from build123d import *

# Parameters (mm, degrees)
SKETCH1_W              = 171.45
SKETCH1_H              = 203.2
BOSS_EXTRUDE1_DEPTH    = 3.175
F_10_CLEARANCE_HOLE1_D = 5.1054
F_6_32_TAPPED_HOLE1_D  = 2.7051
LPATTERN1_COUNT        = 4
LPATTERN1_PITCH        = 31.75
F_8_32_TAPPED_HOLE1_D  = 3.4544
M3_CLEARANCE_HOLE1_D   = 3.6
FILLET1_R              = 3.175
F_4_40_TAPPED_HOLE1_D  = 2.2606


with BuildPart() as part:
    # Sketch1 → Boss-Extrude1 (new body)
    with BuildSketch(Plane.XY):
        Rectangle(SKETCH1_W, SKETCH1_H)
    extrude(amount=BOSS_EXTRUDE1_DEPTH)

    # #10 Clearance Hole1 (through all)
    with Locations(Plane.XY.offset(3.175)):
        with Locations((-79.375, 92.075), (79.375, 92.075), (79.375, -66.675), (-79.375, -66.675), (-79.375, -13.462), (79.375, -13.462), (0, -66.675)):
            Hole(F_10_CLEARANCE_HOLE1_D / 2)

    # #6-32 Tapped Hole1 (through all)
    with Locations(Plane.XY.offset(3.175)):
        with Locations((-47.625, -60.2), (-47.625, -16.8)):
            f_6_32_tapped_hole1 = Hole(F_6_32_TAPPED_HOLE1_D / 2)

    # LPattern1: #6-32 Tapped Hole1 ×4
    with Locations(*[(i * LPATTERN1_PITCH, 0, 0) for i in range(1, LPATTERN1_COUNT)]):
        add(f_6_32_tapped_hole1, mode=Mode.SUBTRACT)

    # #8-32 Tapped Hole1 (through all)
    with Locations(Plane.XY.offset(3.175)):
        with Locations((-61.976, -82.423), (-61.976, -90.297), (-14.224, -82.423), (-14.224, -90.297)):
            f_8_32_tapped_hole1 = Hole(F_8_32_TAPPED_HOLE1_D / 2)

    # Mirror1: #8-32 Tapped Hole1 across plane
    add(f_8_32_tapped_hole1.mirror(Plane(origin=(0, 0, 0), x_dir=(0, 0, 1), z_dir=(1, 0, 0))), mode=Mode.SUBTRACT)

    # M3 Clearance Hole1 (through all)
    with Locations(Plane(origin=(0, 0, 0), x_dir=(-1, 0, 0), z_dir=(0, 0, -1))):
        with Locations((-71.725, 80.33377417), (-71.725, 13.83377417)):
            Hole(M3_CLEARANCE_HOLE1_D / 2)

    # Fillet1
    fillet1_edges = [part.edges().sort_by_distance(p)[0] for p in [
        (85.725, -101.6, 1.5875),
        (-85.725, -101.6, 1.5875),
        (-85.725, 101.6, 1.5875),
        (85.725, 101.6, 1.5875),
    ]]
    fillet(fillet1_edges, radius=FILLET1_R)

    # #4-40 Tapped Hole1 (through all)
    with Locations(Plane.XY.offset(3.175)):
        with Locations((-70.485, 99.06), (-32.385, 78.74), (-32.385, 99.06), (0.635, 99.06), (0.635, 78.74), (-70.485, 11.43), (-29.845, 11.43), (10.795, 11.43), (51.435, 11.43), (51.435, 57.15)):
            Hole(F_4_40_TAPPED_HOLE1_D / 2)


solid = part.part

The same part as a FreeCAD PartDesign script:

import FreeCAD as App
import Part
import Sketcher
from FreeCAD import Vector
Q = App.Units.Quantity


def edges_at(feature, points):
    """Names of the edges that pass closest to the given points."""
    edges = feature.Shape.Edges
    near = lambda p: min(range(len(edges)), key=lambda i: edges[i].distToShape(Part.Vertex(*p))[0])
    return sorted({f"Edge{near(p) + 1}" for p in points})


def add_polygon(sketch, points):
    """Adds a closed chain of lines whose ends are joined by coincident constraints."""
    first, n = sketch.GeometryCount, len(points)
    for a, b in zip(points, points[1:] + points[:1]):
        sketch.addGeometry(Part.LineSegment(App.Vector(*a, 0), App.Vector(*b, 0)), False)
    for i in range(n):
        sketch.addConstraint(Sketcher.Constraint("Coincident", first + i, 2, first + (i + 1) % n, 1))

doc = App.newDocument("Part")
body = doc.addObject("PartDesign::Body", "Body")

sketch1 = doc.addObject("Sketcher::SketchObject", "Sketch")
body.addObject(sketch1)
sketch1.AttachmentSupport = (doc.XY_Plane, [""])
sketch1.MapMode = "FlatFace"
add_polygon(sketch1, [(-86, 102), (-86, -102), (86, -102), (86, 102)])
sketch1.addConstraint(Sketcher.Constraint("Vertical", 0))
sketch1.addConstraint(Sketcher.Constraint("Horizontal", 1))
sketch1.addConstraint(Sketcher.Constraint("Vertical", 2))
sketch1.addConstraint(Sketcher.Constraint("Horizontal", 3))
sketch1.addConstraint(Sketcher.Constraint("Symmetric", 0, 2, 2, 2, -1, 1))
sketch1.addConstraint(Sketcher.Constraint("DistanceY", 0, 2, 0, 1, Q("8 in")))
sketch1.addConstraint(Sketcher.Constraint("DistanceX", 1, 1, 1, 2, Q("6.75 in")))
pad1 = doc.addObject("PartDesign::Pad", "Pad")
body.addObject(pad1)
pad1.Profile = sketch1
pad1.Length = Q("0.125 in")

sketch2 = doc.addObject("Sketcher::SketchObject", "Sketch001")
body.addObject(sketch2)
sketch2.AttachmentSupport = (doc.XY_Plane, [""])
sketch2.MapMode = "FlatFace"
sketch2.AttachmentOffset = App.Placement(Vector(0, 0, 0.125 * 25.4), App.Rotation())
sketch2.addGeometry(Part.Circle(Vector(-79.4, 92.1, 0), Vector(0, 0, 1), 2.6), False)
sketch2.addGeometry(Part.Circle(Vector(79.4, 92.1, 0), Vector(0, 0, 1), 2.6), False)
sketch2.addGeometry(Part.Circle(Vector(79.4, -66.7, 0), Vector(0, 0, 1), 2.6), False)
sketch2.addGeometry(Part.Circle(Vector(-79.4, -66.7, 0), Vector(0, 0, 1), 2.6), False)
sketch2.addGeometry(Part.Circle(Vector(-79.4, -13.5, 0), Vector(0, 0, 1), 2.6), False)
sketch2.addGeometry(Part.Circle(Vector(79.4, -13.5, 0), Vector(0, 0, 1), 2.6), False)
sketch2.addGeometry(Part.Circle(Vector(0, -66.7, 0), Vector(0, 0, 1), 2.6), False)
sketch2.addConstraint(Sketcher.Constraint("Equal", 0, 1))
sketch2.addConstraint(Sketcher.Constraint("Equal", 1, 2))
sketch2.addConstraint(Sketcher.Constraint("Equal", 2, 3))
sketch2.addConstraint(Sketcher.Constraint("Equal", 3, 4))
sketch2.addConstraint(Sketcher.Constraint("Equal", 4, 5))
sketch2.addConstraint(Sketcher.Constraint("Equal", 5, 6))
sketch2.addConstraint(Sketcher.Constraint("Symmetric", 0, 3, 1, 3, -2))
sketch2.addConstraint(Sketcher.Constraint("Symmetric", 2, 3, 3, 3, -2))
sketch2.addConstraint(Sketcher.Constraint("Symmetric", 4, 3, 5, 3, -2))
sketch2.addConstraint(Sketcher.Constraint("PointOnObject", 6, 3, -2))
sketch2.addConstraint(Sketcher.Constraint("Horizontal", 3, 3, 6, 3))
sketch2.addConstraint(Sketcher.Constraint("Vertical", 1, 3, 2, 3))
sketch2.addConstraint(Sketcher.Constraint("Vertical", 3, 3, 4, 3))
sketch2.addConstraint(Sketcher.Constraint("Diameter", 0, Q("0.201 in")))
sketch2.addConstraint(Sketcher.Constraint("DistanceY", 4, 3, -1, 1, Q("0.53 in")))
sketch2.addConstraint(Sketcher.Constraint("DistanceX", 0, 3, 1, 3, Q("6.25 in")))
sketch2.addConstraint(Sketcher.Constraint("DistanceY", 2, 3, 1, 3, Q("6.25 in")))
sketch2.addConstraint(Sketcher.Constraint("DistanceY", -1, 1, 0, 3, Q("3.625 in")))
doc.recompute()
hole = doc.addObject("PartDesign::Hole", "Hole")
body.addObject(hole)
hole.Profile = sketch2
hole.ThreadType = "None"
hole.Diameter = Q("0.201 in")
hole.DepthType = "ThroughAll"

sketch3 = doc.addObject("Sketcher::SketchObject", "Sketch002")
body.addObject(sketch3)
sketch3.AttachmentSupport = (doc.XY_Plane, [""])
sketch3.MapMode = "FlatFace"
sketch3.AttachmentOffset = App.Placement(Vector(0, 0, 0.125 * 25.4), App.Rotation())
sketch3.addGeometry(Part.Circle(Vector(-47.6, -60.2, 0), Vector(0, 0, 1), 1.4), False)
sketch3.addGeometry(Part.Circle(Vector(-47.6, -16.8, 0), Vector(0, 0, 1), 1.4), False)
sketch3.addConstraint(Sketcher.Constraint("Equal", 0, 1))
sketch3.addConstraint(Sketcher.Constraint("Vertical", 0, 3, 1, 3))
sketch3.addConstraint(Sketcher.Constraint("Diameter", 0, Q("0.1065 in")))
sketch3.addConstraint(Sketcher.Constraint("DistanceX", 0, 3, -1, 1, Q("1.875 in")))
sketch3.addConstraint(Sketcher.Constraint("DistanceY", 0, 3, -1, 1, Q("60.2 mm")))
sketch3.addConstraint(Sketcher.Constraint("DistanceY", 1, 3, -1, 1, Q("16.8 mm")))
doc.recompute()
hole2 = doc.addObject("PartDesign::Hole", "Hole001")
body.addObject(hole2)
hole2.Profile = sketch3
hole2.ThreadType = "None"
hole2.Diameter = Q("0.1065 in")
hole2.DepthType = "ThroughAll"
doc.recompute()

linearpattern = doc.addObject("PartDesign::LinearPattern", "LinearPattern")
body.addObject(linearpattern)
linearpattern.Originals = [hole2]
linearpattern.Direction = (doc.X_Axis, [""])
linearpattern.Mode = "offset"
linearpattern.Offset = Q("1.25 in")
linearpattern.Occurrences = 4
body.Tip = linearpattern

sketch4 = doc.addObject("Sketcher::SketchObject", "Sketch003")
body.addObject(sketch4)
sketch4.AttachmentSupport = (doc.XY_Plane, [""])
sketch4.MapMode = "FlatFace"
sketch4.AttachmentOffset = App.Placement(Vector(0, 0, 0.125 * 25.4), App.Rotation())
sketch4.addGeometry(Part.Circle(Vector(-62, -82.4, 0), Vector(0, 0, 1), 1.7), False)
sketch4.addGeometry(Part.Circle(Vector(-62, -90.3, 0), Vector(0, 0, 1), 1.7), False)
sketch4.addGeometry(Part.Circle(Vector(-14.2, -82.4, 0), Vector(0, 0, 1), 1.7), False)
sketch4.addGeometry(Part.Circle(Vector(-14.2, -90.3, 0), Vector(0, 0, 1), 1.7), False)
sketch4.addConstraint(Sketcher.Constraint("Equal", 0, 1))
sketch4.addConstraint(Sketcher.Constraint("Equal", 1, 2))
sketch4.addConstraint(Sketcher.Constraint("Equal", 2, 3))
sketch4.addConstraint(Sketcher.Constraint("Horizontal", 0, 3, 2, 3))
sketch4.addConstraint(Sketcher.Constraint("Horizontal", 1, 3, 3, 3))
sketch4.addConstraint(Sketcher.Constraint("Vertical", 0, 3, 1, 3))
sketch4.addConstraint(Sketcher.Constraint("Vertical", 2, 3, 3, 3))
sketch4.addConstraint(Sketcher.Constraint("Diameter", 0, Q("0.136 in")))
sketch4.addConstraint(Sketcher.Constraint("DistanceX", 0, 3, -1, 1, Q("2.44 in")))
sketch4.addConstraint(Sketcher.Constraint("DistanceX", 2, 3, -1, 1, Q("0.56 in")))
sketch4.addConstraint(Sketcher.Constraint("DistanceY", 1, 3, 0, 3, Q("0.31 in")))
sketch4.addConstraint(Sketcher.Constraint("DistanceY", 0, 3, -1, 1, Q("3.245 in")))
doc.recompute()
hole3 = doc.addObject("PartDesign::Hole", "Hole002")
body.addObject(hole3)
hole3.Profile = sketch4
hole3.ThreadType = "None"
hole3.Diameter = Q("0.136 in")
hole3.DepthType = "ThroughAll"
doc.recompute()

mirrored = doc.addObject("PartDesign::Mirrored", "Mirrored")
body.addObject(mirrored)
mirrored.Originals = [hole3]
mirrored.MirrorPlane = (doc.YZ_Plane, [""])
body.Tip = mirrored

sketch5 = doc.addObject("Sketcher::SketchObject", "Sketch004")
body.addObject(sketch5)
sketch5.AttachmentSupport = (doc.XY_Plane, [""])
sketch5.MapMode = "FlatFace"
sketch5.addGeometry(Part.Circle(Vector(71.7, 80.3, 0), Vector(0, 0, 1), 1.8), False)
sketch5.addGeometry(Part.Circle(Vector(71.7, 13.8, 0), Vector(0, 0, 1), 1.8), False)
sketch5.addConstraint(Sketcher.Constraint("Equal", 0, 1))
sketch5.addConstraint(Sketcher.Constraint("Vertical", 0, 3, 1, 3))
sketch5.addConstraint(Sketcher.Constraint("Diameter", 0, Q("3.6 mm")))
sketch5.addConstraint(Sketcher.Constraint("DistanceX", -1, 1, 0, 3, Q("71.725 mm")))
sketch5.addConstraint(Sketcher.Constraint("DistanceY", 1, 3, 0, 3, Q("66.5 mm")))
sketch5.addConstraint(Sketcher.Constraint("DistanceY", -1, 1, 0, 3, Q("80.333774 mm")))
doc.recompute()
hole4 = doc.addObject("PartDesign::Hole", "Hole003")
body.addObject(hole4)
hole4.Profile = sketch5
hole4.ThreadType = "None"
hole4.Diameter = 3.6
hole4.DepthType = "ThroughAll"
hole4.Reversed = True
doc.recompute()

fillet = doc.addObject("PartDesign::Fillet", "Fillet")
body.addObject(fillet)
fillet.Base = (hole4, edges_at(hole4, [
    (85.725, -101.6, 1.587),
    (-85.725, -101.6, 1.587),
    (-85.725, 101.6, 1.587),
    (85.725, 101.6, 1.587),
]))
fillet.Radius = Q("0.125 in")

sketch6 = doc.addObject("Sketcher::SketchObject", "Sketch005")
body.addObject(sketch6)
sketch6.AttachmentSupport = (doc.XY_Plane, [""])
sketch6.MapMode = "FlatFace"
sketch6.AttachmentOffset = App.Placement(Vector(0, 0, 0.125 * 25.4), App.Rotation())
sketch6.addGeometry(Part.Circle(Vector(-70.5, 99.1, 0), Vector(0, 0, 1), 1.1), False)
sketch6.addGeometry(Part.Circle(Vector(-32.4, 78.7, 0), Vector(0, 0, 1), 1.1), False)
sketch6.addGeometry(Part.Circle(Vector(-32.4, 99.1, 0), Vector(0, 0, 1), 1.1), False)
sketch6.addGeometry(Part.Circle(Vector(0.6, 99.1, 0), Vector(0, 0, 1), 1.1), False)
sketch6.addGeometry(Part.Circle(Vector(0.6, 78.7, 0), Vector(0, 0, 1), 1.1), False)
sketch6.addGeometry(Part.Circle(Vector(-70.5, 11.4, 0), Vector(0, 0, 1), 1.1), False)
sketch6.addGeometry(Part.Circle(Vector(-29.8, 11.4, 0), Vector(0, 0, 1), 1.1), False)
sketch6.addGeometry(Part.Circle(Vector(10.8, 11.4, 0), Vector(0, 0, 1), 1.1), False)
sketch6.addGeometry(Part.Circle(Vector(51.4, 11.4, 0), Vector(0, 0, 1), 1.1), False)
sketch6.addGeometry(Part.Circle(Vector(51.4, 57.1, 0), Vector(0, 0, 1), 1.1), False)
sketch6.addConstraint(Sketcher.Constraint("Equal", 0, 1))
sketch6.addConstraint(Sketcher.Constraint("Equal", 1, 2))
sketch6.addConstraint(Sketcher.Constraint("Equal", 2, 3))
sketch6.addConstraint(Sketcher.Constraint("Equal", 3, 4))
sketch6.addConstraint(Sketcher.Constraint("Equal", 4, 5))
sketch6.addConstraint(Sketcher.Constraint("Equal", 5, 6))
sketch6.addConstraint(Sketcher.Constraint("Equal", 6, 7))
sketch6.addConstraint(Sketcher.Constraint("Equal", 7, 8))
sketch6.addConstraint(Sketcher.Constraint("Equal", 8, 9))
sketch6.addConstraint(Sketcher.Constraint("Horizontal", 0, 3, 2, 3))
sketch6.addConstraint(Sketcher.Constraint("Horizontal", 2, 3, 3, 3))
sketch6.addConstraint(Sketcher.Constraint("Horizontal", 1, 3, 4, 3))
sketch6.addConstraint(Sketcher.Constraint("Horizontal", 5, 3, 6, 3))
sketch6.addConstraint(Sketcher.Constraint("Horizontal", 6, 3, 7, 3))
sketch6.addConstraint(Sketcher.Constraint("Horizontal", 7, 3, 8, 3))
sketch6.addConstraint(Sketcher.Constraint("Vertical", 1, 3, 2, 3))
sketch6.addConstraint(Sketcher.Constraint("Vertical", 3, 3, 4, 3))
sketch6.addConstraint(Sketcher.Constraint("Vertical", 0, 3, 5, 3))
sketch6.addConstraint(Sketcher.Constraint("Vertical", 8, 3, 9, 3))
sketch6.addConstraint(Sketcher.Constraint("Diameter", 0, Q("0.089 in")))
sketch6.addConstraint(Sketcher.Constraint("DistanceX", 4, 3, 8, 3, Q("2 in")))
sketch6.addConstraint(Sketcher.Constraint("DistanceY", -1, 1, 0, 3, Q("3.9 in")))
sketch6.addConstraint(Sketcher.Constraint("DistanceY", -1, 1, 1, 3, Q("3.1 in")))
sketch6.addConstraint(Sketcher.Constraint("DistanceX", 0, 3, 1, 3, Q("1.5 in")))
sketch6.addConstraint(Sketcher.Constraint("DistanceX", 2, 3, 3, 3, Q("1.3 in")))
sketch6.addConstraint(Sketcher.Constraint("DistanceX", 5, 3, 6, 3, Q("1.6 in")))
sketch6.addConstraint(Sketcher.Constraint("DistanceX", 6, 3, 7, 3, Q("1.6 in")))
sketch6.addConstraint(Sketcher.Constraint("DistanceY", 8, 3, 9, 3, Q("1.8 in")))
sketch6.addConstraint(Sketcher.Constraint("DistanceY", -1, 1, 5, 3, Q("0.45 in")))
sketch6.addConstraint(Sketcher.Constraint("DistanceX", 0, 3, -1, 1, Q("2.775 in")))
doc.recompute()
hole5 = doc.addObject("PartDesign::Hole", "Hole004")
body.addObject(hole5)
hole5.Profile = sketch6
hole5.ThreadType = "None"
hole5.Diameter = Q("0.089 in")
hole5.DepthType = "ThroughAll"

doc.recompute()
